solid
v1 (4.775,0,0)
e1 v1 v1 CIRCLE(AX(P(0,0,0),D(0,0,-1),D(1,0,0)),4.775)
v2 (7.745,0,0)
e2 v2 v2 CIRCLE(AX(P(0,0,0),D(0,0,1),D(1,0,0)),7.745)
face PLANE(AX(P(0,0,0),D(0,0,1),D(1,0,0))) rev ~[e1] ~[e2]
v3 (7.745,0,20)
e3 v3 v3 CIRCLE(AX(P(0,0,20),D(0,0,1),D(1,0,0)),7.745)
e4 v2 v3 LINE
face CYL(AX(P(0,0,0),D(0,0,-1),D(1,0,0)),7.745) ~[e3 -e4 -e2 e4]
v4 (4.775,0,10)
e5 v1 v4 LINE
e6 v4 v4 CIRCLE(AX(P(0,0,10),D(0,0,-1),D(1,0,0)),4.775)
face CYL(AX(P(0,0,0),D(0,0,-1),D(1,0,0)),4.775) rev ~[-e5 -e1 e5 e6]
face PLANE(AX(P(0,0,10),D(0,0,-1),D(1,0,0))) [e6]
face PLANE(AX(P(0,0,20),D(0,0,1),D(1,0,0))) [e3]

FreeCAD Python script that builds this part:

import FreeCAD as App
import Part
import Sketcher

doc = App.newDocument("Part")
body = doc.addObject("PartDesign::Body", "Body")

# Sketch on XY plane
sketch1 = body.newObject("Sketcher::SketchObject", "Sketch")
sketch1.AttachmentSupport = (doc.getObject("XY_Plane"), [""])
sketch1.MapMode = "FlatFace"
sketch1.addGeometry(Part.Circle(App.Vector(0, 0, 0), App.Vector(0, 0, 1), 7.745), False)
sketch1.addConstraint(Sketcher.Constraint("Coincident", 0, 3, -1, 1))
sketch1.addConstraint(Sketcher.Constraint("Diameter", 0, 15.49))
pad1 = body.newObject("PartDesign::Pad", "Pad")
pad1.Profile = sketch1
pad1.Length = 20

# Sketch on XY plane
sketch2 = body.newObject("Sketcher::SketchObject", "Sketch001")
sketch2.AttachmentSupport = (doc.getObject("XY_Plane"), [""])
sketch2.MapMode = "FlatFace"
sketch2.addGeometry(Part.Circle(App.Vector(0, 0, 0), App.Vector(0, 0, 1), 4.775), False)
sketch2.addConstraint(Sketcher.Constraint("Coincident", 0, 3, -1, 1))
sketch2.addConstraint(Sketcher.Constraint("Diameter", 0, 9.55))
pocket1 = body.newObject("PartDesign::Pocket", "Pocket")
pocket1.Profile = sketch2
pocket1.Length = 10
pocket1.Reversed = True

doc.recompute()
